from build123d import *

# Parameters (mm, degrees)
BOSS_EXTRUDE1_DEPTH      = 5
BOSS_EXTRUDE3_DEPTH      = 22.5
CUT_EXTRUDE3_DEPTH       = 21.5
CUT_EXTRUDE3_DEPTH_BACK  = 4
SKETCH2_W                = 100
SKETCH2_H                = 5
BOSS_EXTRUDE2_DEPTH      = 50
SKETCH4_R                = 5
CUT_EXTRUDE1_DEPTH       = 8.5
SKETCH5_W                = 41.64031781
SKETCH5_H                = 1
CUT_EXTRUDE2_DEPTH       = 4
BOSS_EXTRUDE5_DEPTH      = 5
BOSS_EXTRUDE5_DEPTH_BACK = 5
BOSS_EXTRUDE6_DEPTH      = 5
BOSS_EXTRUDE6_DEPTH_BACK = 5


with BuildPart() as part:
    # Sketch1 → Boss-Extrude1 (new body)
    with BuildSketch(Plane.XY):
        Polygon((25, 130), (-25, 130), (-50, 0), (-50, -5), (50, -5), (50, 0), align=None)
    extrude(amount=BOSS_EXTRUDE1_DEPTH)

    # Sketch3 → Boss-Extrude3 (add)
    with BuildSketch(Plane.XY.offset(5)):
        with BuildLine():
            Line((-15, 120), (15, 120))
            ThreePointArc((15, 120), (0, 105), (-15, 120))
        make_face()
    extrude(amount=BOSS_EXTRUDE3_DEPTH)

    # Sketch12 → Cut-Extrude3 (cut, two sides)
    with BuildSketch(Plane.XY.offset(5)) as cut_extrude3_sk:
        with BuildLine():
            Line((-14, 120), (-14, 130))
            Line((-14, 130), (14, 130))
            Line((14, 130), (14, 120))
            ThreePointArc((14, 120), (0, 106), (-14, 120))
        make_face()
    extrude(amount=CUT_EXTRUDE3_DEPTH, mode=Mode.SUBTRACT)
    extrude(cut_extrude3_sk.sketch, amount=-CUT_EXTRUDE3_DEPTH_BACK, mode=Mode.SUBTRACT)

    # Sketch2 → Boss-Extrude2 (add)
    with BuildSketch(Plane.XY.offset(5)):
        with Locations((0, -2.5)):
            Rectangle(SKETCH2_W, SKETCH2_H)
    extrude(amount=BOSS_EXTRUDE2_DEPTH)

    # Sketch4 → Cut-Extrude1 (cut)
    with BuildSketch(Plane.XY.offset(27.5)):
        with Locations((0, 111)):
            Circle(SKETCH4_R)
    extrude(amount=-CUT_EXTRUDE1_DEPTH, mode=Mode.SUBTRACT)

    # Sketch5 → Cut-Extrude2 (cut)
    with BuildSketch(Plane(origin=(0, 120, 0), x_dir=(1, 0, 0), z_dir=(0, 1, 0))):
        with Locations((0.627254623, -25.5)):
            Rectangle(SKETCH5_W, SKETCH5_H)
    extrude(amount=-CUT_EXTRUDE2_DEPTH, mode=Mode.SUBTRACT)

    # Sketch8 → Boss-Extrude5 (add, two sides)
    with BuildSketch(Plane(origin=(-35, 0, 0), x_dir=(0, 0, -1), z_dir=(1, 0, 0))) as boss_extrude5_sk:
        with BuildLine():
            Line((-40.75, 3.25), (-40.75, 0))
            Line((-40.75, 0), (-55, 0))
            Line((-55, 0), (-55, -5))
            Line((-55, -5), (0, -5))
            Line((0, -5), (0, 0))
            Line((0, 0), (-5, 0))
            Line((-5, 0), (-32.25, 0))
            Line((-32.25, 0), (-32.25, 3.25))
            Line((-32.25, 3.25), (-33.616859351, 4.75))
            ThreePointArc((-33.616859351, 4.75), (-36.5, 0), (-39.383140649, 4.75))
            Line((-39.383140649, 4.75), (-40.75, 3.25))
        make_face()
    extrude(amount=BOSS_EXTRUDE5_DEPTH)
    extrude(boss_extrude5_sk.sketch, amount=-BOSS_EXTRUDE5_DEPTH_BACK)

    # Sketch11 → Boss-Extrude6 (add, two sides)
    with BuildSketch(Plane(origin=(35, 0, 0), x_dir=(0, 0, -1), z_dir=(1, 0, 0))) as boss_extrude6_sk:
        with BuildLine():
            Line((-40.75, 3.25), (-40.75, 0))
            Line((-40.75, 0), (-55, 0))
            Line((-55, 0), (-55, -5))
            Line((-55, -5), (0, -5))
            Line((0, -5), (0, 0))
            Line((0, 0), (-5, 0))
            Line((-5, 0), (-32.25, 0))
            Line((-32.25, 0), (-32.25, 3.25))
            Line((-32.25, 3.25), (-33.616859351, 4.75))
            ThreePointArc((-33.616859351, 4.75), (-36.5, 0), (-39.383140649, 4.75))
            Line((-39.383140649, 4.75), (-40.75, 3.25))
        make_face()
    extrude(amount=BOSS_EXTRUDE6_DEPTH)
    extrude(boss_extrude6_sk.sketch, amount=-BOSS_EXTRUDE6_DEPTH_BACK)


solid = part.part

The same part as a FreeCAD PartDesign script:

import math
import FreeCAD as App
import Part
import Sketcher

V = App.Vector

doc = App.newDocument("Part")
body = doc.addObject("PartDesign::Body", "Body")

sketch1 = doc.addObject("Sketcher::SketchObject", "Sketch")
body.addObject(sketch1)
sketch1.AttachmentSupport = (doc.XY_Plane, [""])
sketch1.MapMode = "FlatFace"
sketch1.addGeometry([
    Part.LineSegment(V(25, 130, 0), V(-25, 130, 0)),
    Part.LineSegment(V(-25, 130, 0), V(-50, 0, 0)),
    Part.LineSegment(V(-50, 0, 0), V(-50, -5, 0)),
    Part.LineSegment(V(-50, -5, 0), V(50, -5, 0)),
    Part.LineSegment(V(50, -5, 0), V(50, 0, 0)),
    Part.LineSegment(V(50, 0, 0), V(25, 130, 0)),
], False)
sketch1.addConstraint([
    Sketcher.Constraint("Coincident", 0, 2, 1, 1),
    Sketcher.Constraint("Coincident", 1, 2, 2, 1),
    Sketcher.Constraint("Coincident", 2, 2, 3, 1),
    Sketcher.Constraint("Coincident", 3, 2, 4, 1),
    Sketcher.Constraint("Coincident", 4, 2, 5, 1),
    Sketcher.Constraint("Coincident", 5, 2, 0, 1),
    Sketcher.Constraint("Horizontal", 0),
    Sketcher.Constraint("Vertical", 2),
    Sketcher.Constraint("Horizontal", 3),
    Sketcher.Constraint("Vertical", 4),
    Sketcher.Constraint("Symmetric", 1, 2, 4, 2, -1, 1),
    Sketcher.Constraint("PointOnObject", 1, 2, -1),
    Sketcher.Constraint("Equal", 1, 5),
    Sketcher.Constraint("DistanceX", 0, 2, 0, 1, 50.0),
    Sketcher.Constraint("DistanceX", 3, 1, 3, 2, 100.0),
    Sketcher.Constraint("DistanceY", 2, 2, 2, 1, 5.0),
    Sketcher.Constraint("DistanceY", -1, 1, 0, 2, 130.0),
])
pad1 = doc.addObject("PartDesign::Pad", "Pad")
body.addObject(pad1)
pad1.Profile = sketch1
pad1.Length = 5

sketch2 = doc.addObject("Sketcher::SketchObject", "Sketch001")
body.addObject(sketch2)
sketch2.AttachmentSupport = (doc.XY_Plane, [""])
sketch2.MapMode = "FlatFace"
sketch2.AttachmentOffset = App.Placement(V(0, 0, 5), App.Rotation())
sketch2.addGeometry([
    Part.LineSegment(V(15, 120, 0), V(-15, 120, 0)),
    Part.ArcOfCircle(Part.Circle(V(0, 120, 0), V(0, 0, 1), 15), math.radians(180), math.radians(360)),
], False)
sketch2.addConstraint([
    Sketcher.Constraint("Coincident", 0, 1, 1, 2),
    Sketcher.Constraint("Coincident", 1, 1, 0, 2),
    Sketcher.Constraint("Horizontal", 0),
    Sketcher.Constraint("PointOnObject", 1, 3, -2),
    Sketcher.Constraint("Horizontal", 1, 3, 0, 1),
    Sketcher.Constraint("Radius", 1, 15.0),
    Sketcher.Constraint("DistanceY", -1, 1, 1, 3, 120.0),
])
pad2 = doc.addObject("PartDesign::Pad", "Pad001")
body.addObject(pad2)
pad2.Profile = sketch2
pad2.Length = 22.5

sketch3 = doc.addObject("Sketcher::SketchObject", "Sketch002")
body.addObject(sketch3)
sketch3.AttachmentSupport = (doc.XY_Plane, [""])
sketch3.MapMode = "FlatFace"
sketch3.AttachmentOffset = App.Placement(V(0, 0, 5), App.Rotation())
sketch3.addGeometry([
    Part.LineSegment(V(-14, 130, 0), V(-14, 120, 0)),
    Part.ArcOfCircle(Part.Circle(V(0, 120, 0), V(0, 0, 1), 14), math.radians(180), math.radians(360)),
    Part.LineSegment(V(14, 120, 0), V(14, 130, 0)),
    Part.LineSegment(V(14, 130, 0), V(-14, 130, 0)),
], False)
sketch3.addConstraint([
    Sketcher.Constraint("Tangent", 0, 2, 1, 1),
    Sketcher.Constraint("Tangent", 1, 2, 2, 1),
    Sketcher.Constraint("Coincident", 2, 2, 3, 1),
    Sketcher.Constraint("Coincident", 3, 2, 0, 1),
    Sketcher.Constraint("Vertical", 0),
    Sketcher.Constraint("Vertical", 2),
    Sketcher.Constraint("Horizontal", 3),
    Sketcher.Constraint("PointOnObject", 1, 3, -2),
    Sketcher.Constraint("Radius", 1, 14.0),
    Sketcher.Constraint("DistanceY", 0, 2, 0, 1, 10.0),
    Sketcher.Constraint("DistanceY", -1, 1, 1, 3, 120.0),
])
pocket1 = doc.addObject("PartDesign::Pocket", "Pocket")
body.addObject(pocket1)
pocket1.Profile = sketch3
pocket1.Type = "TwoLengths"
pocket1.Length = 21.5
pocket1.Length2 = 4
pocket1.Reversed = True

sketch4 = doc.addObject("Sketcher::SketchObject", "Sketch003")
body.addObject(sketch4)
sketch4.AttachmentSupport = (doc.XY_Plane, [""])
sketch4.MapMode = "FlatFace"
sketch4.AttachmentOffset = App.Placement(V(0, 0, 5), App.Rotation())
sketch4.addGeometry([
    Part.LineSegment(V(-50, 0, 0), V(-50, -5, 0)),
    Part.LineSegment(V(-50, -5, 0), V(50, -5, 0)),
    Part.LineSegment(V(50, -5, 0), V(50, 0, 0)),
    Part.LineSegment(V(50, 0, 0), V(-50, 0, 0)),
], False)
sketch4.addConstraint([
    Sketcher.Constraint("Coincident", 0, 2, 1, 1),
    Sketcher.Constraint("Coincident", 1, 2, 2, 1),
    Sketcher.Constraint("Coincident", 2, 2, 3, 1),
    Sketcher.Constraint("Coincident", 3, 2, 0, 1),
    Sketcher.Constraint("Vertical", 0),
    Sketcher.Constraint("Horizontal", 1),
    Sketcher.Constraint("Vertical", 2),
    Sketcher.Constraint("Horizontal", 3),
    Sketcher.Constraint("Symmetric", 2, 2, 3, 2, -1, 1),
    Sketcher.Constraint("DistanceX", 1, 1, 1, 2, 100.0),
    Sketcher.Constraint("DistanceY", 0, 2, 0, 1, 5.0),
])
pad3 = doc.addObject("PartDesign::Pad", "Pad002")
body.addObject(pad3)
pad3.Profile = sketch4
pad3.Length = 50

sketch5 = doc.addObject("Sketcher::SketchObject", "Sketch004")
body.addObject(sketch5)
sketch5.AttachmentSupport = (doc.XY_Plane, [""])
sketch5.MapMode = "FlatFace"
sketch5.AttachmentOffset = App.Placement(V(0, 0, 27.5), App.Rotation())
sketch5.addGeometry(Part.Circle(V(0, 111, 0), V(0, 0, 1), 5), False)
sketch5.addConstraint([
    Sketcher.Constraint("PointOnObject", 0, 3, -2),
    Sketcher.Constraint("Diameter", 0, 10.0),
    Sketcher.Constraint("DistanceY", -1, 1, 0, 3, 111.0),
])
pocket2 = doc.addObject("PartDesign::Pocket", "Pocket001")
body.addObject(pocket2)
pocket2.Profile = sketch5
pocket2.Length = 8.5

sketch6 = doc.addObject("Sketcher::SketchObject", "Sketch005")
body.addObject(sketch6)
sketch6.AttachmentSupport = (doc.XZ_Plane, [""])
sketch6.MapMode = "FlatFace"
sketch6.AttachmentOffset = App.Placement(V(0, 0, -120), App.Rotation())
sketch6.addGeometry([
    Part.LineSegment(V(-20.192904, 25, 0), V(-20.192904, 26, 0)),
    Part.LineSegment(V(-20.192904, 26, 0), V(21.447414, 26, 0)),
    Part.LineSegment(V(21.447414, 26, 0), V(21.447414, 25, 0)),
    Part.LineSegment(V(21.447414, 25, 0), V(-20.192904, 25, 0)),
], False)
sketch6.addConstraint([
    Sketcher.Constraint("Coincident", 0, 2, 1, 1),
    Sketcher.Constraint("Coincident", 1, 2, 2, 1),
    Sketcher.Constraint("Coincident", 2, 2, 3, 1),
    Sketcher.Constraint("Coincident", 3, 2, 0, 1),
    Sketcher.Constraint("Vertical", 0),
    Sketcher.Constraint("Horizontal", 1),
    Sketcher.Constraint("Vertical", 2),
    Sketcher.Constraint("Horizontal", 3),
    Sketcher.Constraint("DistanceY", 0, 1, 0, 2, 1.0),
    Sketcher.Constraint("DistanceY", -1, 1, 0, 2, 26.0),
    Sketcher.Constraint("DistanceX", 1, 1, 1, 2, 41.640318),
    Sketcher.Constraint("DistanceX", 0, 2, -1, 1, 20.192904),
])
pocket3 = doc.addObject("PartDesign::Pocket", "Pocket002")
body.addObject(pocket3)
pocket3.Profile = sketch6
pocket3.Length = 4
pocket3.Reversed = True

sketch7 = doc.addObject("Sketcher::SketchObject", "Sketch006")
body.addObject(sketch7)
sketch7.AttachmentSupport = (doc.YZ_Plane, [""])
sketch7.MapMode = "FlatFace"
sketch7.AttachmentOffset = App.Placement(V(0, 0, -35), App.Rotation())
sketch7.addGeometry([
    Part.LineSegment(V(3.25, 40.75, 0), V(0, 40.75, 0)),
    Part.LineSegment(V(0, 40.75, 0), V(0, 55, 0)),
    Part.LineSegment(V(0, 55, 0), V(-5, 55, 0)),
    Part.LineSegment(V(-5, 55, 0), V(-5, 0, 0)),
    Part.LineSegment(V(-5, 0, 0), V(0, 0, 0)),
    Part.LineSegment(V(0, 0, 0), V(0, 32.25, 0)),
    Part.LineSegment(V(0, 32.25, 0), V(3.25, 32.25, 0)),
    Part.LineSegment(V(3.25, 32.25, 0), V(4.75, 33.616859, 0)),
    Part.ArcOfCircle(Part.Circle(V(3.25, 36.5, 0), V(0, 0, 1), 3.25), math.radians(62.513574), math.radians(297.486426)),
    Part.LineSegment(V(4.75, 39.383141, 0), V(3.25, 40.75, 0)),
], False)
sketch7.addConstraint([
    Sketcher.Constraint("Coincident", 0, 2, 1, 1),
    Sketcher.Constraint("Coincident", 1, 2, 2, 1),
    Sketcher.Constraint("Coincident", 2, 2, 3, 1),
    Sketcher.Constraint("Coincident", 3, 2, 4, 1),
    Sketcher.Constraint("Coincident", 4, 2, 5, 1),
    Sketcher.Constraint("Coincident", 5, 2, 6, 1),
    Sketcher.Constraint("Coincident", 6, 2, 7, 1),
    Sketcher.Constraint("Coincident", 7, 2, 8, 2),
    Sketcher.Constraint("Coincident", 8, 1, 9, 1),
    Sketcher.Constraint("Coincident", 9, 2, 0, 1),
    Sketcher.Constraint("Horizontal", 0),
    Sketcher.Constraint("Vertical", 1),
    Sketcher.Constraint("Horizontal", 2),
    Sketcher.Constraint("Vertical", 3),
    Sketcher.Constraint("Horizontal", 4),
    Sketcher.Constraint("Vertical", 5),
    Sketcher.Constraint("Horizontal", 6),
    Sketcher.Constraint("Coincident", 4, 2, -1, 1),
    Sketcher.Constraint("PointOnObject", 0, 2, -2),
    Sketcher.Constraint("Vertical", 8, 3, 6, 2),
    Sketcher.Constraint("Vertical", 7, 2, 8, 1),
    Sketcher.Constraint("Vertical", 6, 2, 9, 2),
    Sketcher.Constraint("Equal", 7, 9),
    Sketcher.Constraint("DistanceX", 2, 2, 2, 1, 5.0),
    Sketcher.Constraint("DistanceY", 3, 2, 3, 1, 55.0),
    Sketcher.Constraint("Radius", 8, 3.25),
    Sketcher.Constraint("DistanceX", 0, 2, 0, 1, 3.25),
    Sketcher.Constraint("DistanceY", 1, 1, 1, 2, 14.25),
    Sketcher.Constraint("DistanceY", 5, 1, 5, 2, 32.25),
    Sketcher.Constraint("DistanceX", 6, 2, 7, 2, 1.5),
])
pad4 = doc.addObject("PartDesign::Pad", "Pad003")
body.addObject(pad4)
pad4.Profile = sketch7
pad4.Type = "TwoLengths"
pad4.Length = 5
pad4.Length2 = 5

sketch8 = doc.addObject("Sketcher::SketchObject", "Sketch007")
body.addObject(sketch8)
sketch8.AttachmentSupport = (doc.YZ_Plane, [""])
sketch8.MapMode = "FlatFace"
sketch8.AttachmentOffset = App.Placement(V(0, 0, 35), App.Rotation())
sketch8.addGeometry([
    Part.LineSegment(V(3.25, 40.75, 0), V(0, 40.75, 0)),
    Part.LineSegment(V(0, 40.75, 0), V(0, 55, 0)),
    Part.LineSegment(V(0, 55, 0), V(-5, 55, 0)),
    Part.LineSegment(V(-5, 55, 0), V(-5, 0, 0)),
    Part.LineSegment(V(-5, 0, 0), V(0, 0, 0)),
    Part.LineSegment(V(0, 0, 0), V(0, 32.25, 0)),
    Part.LineSegment(V(0, 32.25, 0), V(3.25, 32.25, 0)),
    Part.LineSegment(V(3.25, 32.25, 0), V(4.75, 33.616859, 0)),
    Part.ArcOfCircle(Part.Circle(V(3.25, 36.5, 0), V(0, 0, 1), 3.25), math.radians(62.513574), math.radians(297.486426)),
    Part.LineSegment(V(4.75, 39.383141, 0), V(3.25, 40.75, 0)),
], False)
sketch8.addConstraint([
    Sketcher.Constraint("Coincident", 0, 2, 1, 1),
    Sketcher.Constraint("Coincident", 1, 2, 2, 1),
    Sketcher.Constraint("Coincident", 2, 2, 3, 1),
    Sketcher.Constraint("Coincident", 3, 2, 4, 1),
    Sketcher.Constraint("Coincident", 4, 2, 5, 1),
    Sketcher.Constraint("Coincident", 5, 2, 6, 1),
    Sketcher.Constraint("Coincident", 6, 2, 7, 1),
    Sketcher.Constraint("Coincident", 7, 2, 8, 2),
    Sketcher.Constraint("Coincident", 8, 1, 9, 1),
    Sketcher.Constraint("Coincident", 9, 2, 0, 1),
    Sketcher.Constraint("Horizontal", 0),
    Sketcher.Constraint("Vertical", 1),
    Sketcher.Constraint("Horizontal", 2),
    Sketcher.Constraint("Vertical", 3),
    Sketcher.Constraint("Horizontal", 4),
    Sketcher.Constraint("Vertical", 5),
    Sketcher.Constraint("Horizontal", 6),
    Sketcher.Constraint("Coincident", 4, 2, -1, 1),
    Sketcher.Constraint("PointOnObject", 0, 2, -2),
    Sketcher.Constraint("Vertical", 8, 3, 6, 2),
    Sketcher.Constraint("Vertical", 7, 2, 8, 1),
    Sketcher.Constraint("Vertical", 6, 2, 9, 2),
    Sketcher.Constraint("Equal", 7, 9),
    Sketcher.Constraint("DistanceX", 2, 2, 2, 1, 5.0),
    Sketcher.Constraint("DistanceY", 3, 2, 3, 1, 55.0),
    Sketcher.Constraint("Radius", 8, 3.25),
    Sketcher.Constraint("DistanceX", 0, 2, 0, 1, 3.25),
    Sketcher.Constraint("DistanceY", 1, 1, 1, 2, 14.25),
    Sketcher.Constraint("DistanceY", 5, 1, 5, 2, 32.25),
    Sketcher.Constraint("DistanceX", 6, 2, 7, 2, 1.5),
])
pad5 = doc.addObject("PartDesign::Pad", "Pad004")
body.addObject(pad5)
pad5.Profile = sketch8
pad5.Type = "TwoLengths"
pad5.Length = 5
pad5.Length2 = 5

doc.recompute()
